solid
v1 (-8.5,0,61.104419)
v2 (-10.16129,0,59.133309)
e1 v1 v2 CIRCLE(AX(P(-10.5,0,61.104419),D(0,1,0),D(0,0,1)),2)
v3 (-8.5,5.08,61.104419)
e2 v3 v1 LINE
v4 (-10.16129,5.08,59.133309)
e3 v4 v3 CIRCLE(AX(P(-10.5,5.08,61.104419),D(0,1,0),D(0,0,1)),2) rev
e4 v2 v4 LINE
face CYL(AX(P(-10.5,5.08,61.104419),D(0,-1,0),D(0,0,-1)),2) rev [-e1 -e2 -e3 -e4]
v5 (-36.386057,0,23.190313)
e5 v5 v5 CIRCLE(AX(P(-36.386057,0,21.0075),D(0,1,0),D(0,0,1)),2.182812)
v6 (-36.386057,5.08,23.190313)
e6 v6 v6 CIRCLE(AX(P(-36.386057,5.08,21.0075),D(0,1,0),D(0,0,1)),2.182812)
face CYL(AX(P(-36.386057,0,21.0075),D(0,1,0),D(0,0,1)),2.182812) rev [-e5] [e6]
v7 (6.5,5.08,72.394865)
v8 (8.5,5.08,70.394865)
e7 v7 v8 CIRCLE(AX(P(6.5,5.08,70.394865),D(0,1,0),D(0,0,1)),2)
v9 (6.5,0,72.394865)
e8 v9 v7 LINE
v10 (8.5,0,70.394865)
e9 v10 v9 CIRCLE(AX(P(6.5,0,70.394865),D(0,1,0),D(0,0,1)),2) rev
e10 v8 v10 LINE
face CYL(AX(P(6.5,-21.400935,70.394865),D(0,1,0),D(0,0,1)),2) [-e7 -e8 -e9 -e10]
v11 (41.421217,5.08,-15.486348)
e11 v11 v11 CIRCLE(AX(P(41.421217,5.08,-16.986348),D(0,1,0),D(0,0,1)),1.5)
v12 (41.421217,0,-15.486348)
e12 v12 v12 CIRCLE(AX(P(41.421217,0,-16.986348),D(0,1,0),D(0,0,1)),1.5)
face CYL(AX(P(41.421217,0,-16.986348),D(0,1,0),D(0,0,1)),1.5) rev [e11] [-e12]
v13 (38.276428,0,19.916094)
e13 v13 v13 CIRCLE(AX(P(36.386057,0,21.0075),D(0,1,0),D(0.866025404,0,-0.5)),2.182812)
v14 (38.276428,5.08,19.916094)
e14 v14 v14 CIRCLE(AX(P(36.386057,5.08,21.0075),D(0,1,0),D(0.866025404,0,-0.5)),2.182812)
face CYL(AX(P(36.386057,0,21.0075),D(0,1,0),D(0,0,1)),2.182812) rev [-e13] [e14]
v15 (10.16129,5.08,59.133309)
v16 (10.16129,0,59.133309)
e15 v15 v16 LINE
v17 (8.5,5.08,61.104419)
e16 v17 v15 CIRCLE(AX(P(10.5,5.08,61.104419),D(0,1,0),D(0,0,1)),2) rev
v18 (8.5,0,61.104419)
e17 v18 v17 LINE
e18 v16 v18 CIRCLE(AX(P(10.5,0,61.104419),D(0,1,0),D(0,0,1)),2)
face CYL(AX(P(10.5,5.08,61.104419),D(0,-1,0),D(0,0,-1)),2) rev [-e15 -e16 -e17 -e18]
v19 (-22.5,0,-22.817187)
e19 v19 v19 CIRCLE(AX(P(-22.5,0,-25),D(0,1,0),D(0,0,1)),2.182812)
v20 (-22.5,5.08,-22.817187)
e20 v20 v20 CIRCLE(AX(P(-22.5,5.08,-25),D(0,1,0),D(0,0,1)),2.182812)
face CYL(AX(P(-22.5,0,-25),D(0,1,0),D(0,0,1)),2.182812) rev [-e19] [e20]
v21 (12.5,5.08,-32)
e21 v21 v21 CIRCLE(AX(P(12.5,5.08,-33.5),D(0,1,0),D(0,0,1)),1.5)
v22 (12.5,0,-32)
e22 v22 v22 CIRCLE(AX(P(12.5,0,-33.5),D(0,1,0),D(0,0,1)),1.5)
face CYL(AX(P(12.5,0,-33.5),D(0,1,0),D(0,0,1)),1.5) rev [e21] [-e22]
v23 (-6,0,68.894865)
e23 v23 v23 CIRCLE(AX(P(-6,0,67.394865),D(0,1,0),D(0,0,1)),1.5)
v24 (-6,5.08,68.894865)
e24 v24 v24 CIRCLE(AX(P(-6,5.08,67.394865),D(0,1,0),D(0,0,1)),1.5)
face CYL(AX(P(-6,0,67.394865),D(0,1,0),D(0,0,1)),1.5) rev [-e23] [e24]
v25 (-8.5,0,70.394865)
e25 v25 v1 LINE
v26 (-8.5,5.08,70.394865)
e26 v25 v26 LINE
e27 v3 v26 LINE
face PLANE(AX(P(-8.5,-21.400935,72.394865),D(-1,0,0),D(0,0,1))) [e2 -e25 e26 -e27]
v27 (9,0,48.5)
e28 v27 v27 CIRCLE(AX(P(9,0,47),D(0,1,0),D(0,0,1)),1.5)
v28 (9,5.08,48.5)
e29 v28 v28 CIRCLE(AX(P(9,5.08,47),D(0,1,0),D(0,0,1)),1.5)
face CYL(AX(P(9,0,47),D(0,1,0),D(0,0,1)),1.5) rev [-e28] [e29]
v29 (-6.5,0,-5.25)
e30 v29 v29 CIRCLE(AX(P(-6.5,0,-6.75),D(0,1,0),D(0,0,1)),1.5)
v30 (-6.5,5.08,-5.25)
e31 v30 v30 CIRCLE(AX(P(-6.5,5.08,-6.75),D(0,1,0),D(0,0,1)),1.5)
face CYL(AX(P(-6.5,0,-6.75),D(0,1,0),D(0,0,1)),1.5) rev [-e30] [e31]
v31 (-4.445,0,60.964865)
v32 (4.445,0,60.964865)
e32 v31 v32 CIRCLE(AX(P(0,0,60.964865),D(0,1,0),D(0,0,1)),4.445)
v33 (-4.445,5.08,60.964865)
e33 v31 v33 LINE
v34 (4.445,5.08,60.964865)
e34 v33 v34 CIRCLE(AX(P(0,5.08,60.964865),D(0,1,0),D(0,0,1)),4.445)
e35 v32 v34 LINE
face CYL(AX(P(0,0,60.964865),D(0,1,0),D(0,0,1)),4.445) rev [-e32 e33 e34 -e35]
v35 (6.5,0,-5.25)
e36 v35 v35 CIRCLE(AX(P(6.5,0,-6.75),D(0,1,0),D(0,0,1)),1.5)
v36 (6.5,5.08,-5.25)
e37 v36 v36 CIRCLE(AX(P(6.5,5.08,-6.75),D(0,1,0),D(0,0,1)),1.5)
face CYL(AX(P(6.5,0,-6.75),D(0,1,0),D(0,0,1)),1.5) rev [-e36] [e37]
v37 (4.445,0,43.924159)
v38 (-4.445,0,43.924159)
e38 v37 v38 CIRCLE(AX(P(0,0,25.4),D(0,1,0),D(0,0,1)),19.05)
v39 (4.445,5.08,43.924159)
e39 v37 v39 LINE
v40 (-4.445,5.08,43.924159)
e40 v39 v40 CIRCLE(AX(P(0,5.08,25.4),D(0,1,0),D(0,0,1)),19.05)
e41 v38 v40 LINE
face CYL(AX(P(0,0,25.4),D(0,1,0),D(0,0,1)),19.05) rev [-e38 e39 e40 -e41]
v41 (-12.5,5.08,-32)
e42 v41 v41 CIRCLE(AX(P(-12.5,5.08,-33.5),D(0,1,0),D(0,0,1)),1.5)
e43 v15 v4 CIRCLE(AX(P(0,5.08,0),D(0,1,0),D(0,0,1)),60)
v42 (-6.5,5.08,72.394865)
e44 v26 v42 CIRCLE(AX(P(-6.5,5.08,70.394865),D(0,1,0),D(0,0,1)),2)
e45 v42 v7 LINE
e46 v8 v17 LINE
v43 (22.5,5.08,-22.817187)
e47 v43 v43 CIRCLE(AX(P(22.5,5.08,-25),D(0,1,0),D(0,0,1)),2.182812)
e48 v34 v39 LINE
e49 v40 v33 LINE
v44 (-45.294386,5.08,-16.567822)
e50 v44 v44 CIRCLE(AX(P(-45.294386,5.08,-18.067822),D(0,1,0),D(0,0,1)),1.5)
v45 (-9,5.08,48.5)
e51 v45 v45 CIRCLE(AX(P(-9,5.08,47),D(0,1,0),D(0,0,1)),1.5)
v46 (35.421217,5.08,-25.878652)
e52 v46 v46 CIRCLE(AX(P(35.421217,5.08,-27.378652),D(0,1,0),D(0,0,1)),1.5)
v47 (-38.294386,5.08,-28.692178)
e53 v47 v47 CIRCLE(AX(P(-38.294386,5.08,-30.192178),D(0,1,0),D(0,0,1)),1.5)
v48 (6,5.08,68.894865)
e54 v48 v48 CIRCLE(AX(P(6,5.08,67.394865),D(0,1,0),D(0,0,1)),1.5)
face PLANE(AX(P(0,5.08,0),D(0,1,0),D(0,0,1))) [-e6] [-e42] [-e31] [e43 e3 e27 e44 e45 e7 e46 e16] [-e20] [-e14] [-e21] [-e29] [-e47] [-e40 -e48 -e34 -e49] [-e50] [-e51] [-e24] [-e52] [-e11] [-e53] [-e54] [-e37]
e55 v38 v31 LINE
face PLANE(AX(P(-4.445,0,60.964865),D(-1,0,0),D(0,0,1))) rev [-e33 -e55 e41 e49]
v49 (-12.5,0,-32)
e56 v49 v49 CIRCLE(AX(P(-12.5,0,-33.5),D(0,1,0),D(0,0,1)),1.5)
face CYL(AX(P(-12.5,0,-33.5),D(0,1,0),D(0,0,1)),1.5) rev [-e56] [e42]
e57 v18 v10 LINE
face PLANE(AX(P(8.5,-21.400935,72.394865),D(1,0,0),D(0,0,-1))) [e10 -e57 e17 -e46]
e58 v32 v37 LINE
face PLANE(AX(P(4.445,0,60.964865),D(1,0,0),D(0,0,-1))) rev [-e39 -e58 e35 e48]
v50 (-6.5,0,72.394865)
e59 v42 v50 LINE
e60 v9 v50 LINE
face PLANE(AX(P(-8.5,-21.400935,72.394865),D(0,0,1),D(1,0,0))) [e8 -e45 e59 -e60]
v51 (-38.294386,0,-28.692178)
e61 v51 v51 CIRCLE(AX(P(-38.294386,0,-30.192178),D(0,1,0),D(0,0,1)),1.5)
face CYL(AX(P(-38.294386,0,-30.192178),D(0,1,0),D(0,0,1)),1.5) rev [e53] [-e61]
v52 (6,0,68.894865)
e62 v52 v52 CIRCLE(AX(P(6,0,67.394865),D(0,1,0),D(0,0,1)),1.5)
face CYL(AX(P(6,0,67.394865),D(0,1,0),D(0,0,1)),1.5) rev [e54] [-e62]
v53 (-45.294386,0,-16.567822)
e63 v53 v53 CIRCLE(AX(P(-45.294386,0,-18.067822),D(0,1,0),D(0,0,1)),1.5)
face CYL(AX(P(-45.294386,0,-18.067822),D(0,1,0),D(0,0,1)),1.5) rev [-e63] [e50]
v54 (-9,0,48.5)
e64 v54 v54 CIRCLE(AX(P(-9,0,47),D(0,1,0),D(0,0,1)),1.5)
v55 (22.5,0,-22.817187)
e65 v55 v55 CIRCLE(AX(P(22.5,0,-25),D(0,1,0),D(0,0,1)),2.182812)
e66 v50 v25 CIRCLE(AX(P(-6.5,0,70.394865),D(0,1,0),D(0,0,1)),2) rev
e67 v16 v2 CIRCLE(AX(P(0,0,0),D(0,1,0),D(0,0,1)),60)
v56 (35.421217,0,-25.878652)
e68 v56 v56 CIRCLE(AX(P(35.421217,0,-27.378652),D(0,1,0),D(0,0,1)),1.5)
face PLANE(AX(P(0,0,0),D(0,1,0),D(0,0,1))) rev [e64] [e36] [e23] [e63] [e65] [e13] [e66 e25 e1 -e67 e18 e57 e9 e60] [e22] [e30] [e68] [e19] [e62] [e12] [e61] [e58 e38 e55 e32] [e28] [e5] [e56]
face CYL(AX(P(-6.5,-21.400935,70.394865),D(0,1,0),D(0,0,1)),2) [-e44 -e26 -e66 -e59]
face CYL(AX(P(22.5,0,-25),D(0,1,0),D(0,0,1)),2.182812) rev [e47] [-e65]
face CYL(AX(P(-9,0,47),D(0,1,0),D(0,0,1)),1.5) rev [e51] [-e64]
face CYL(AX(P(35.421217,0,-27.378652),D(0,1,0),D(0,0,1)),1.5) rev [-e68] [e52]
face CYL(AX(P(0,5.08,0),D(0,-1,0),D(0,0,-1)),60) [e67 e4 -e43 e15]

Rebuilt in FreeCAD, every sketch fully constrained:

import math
import FreeCAD as App
import Part
import Sketcher
Q = App.Units.Quantity


def edges_at(feature, points):
    """Names of the edges that pass closest to the given points."""
    edges = feature.Shape.Edges
    near = lambda p: min(range(len(edges)), key=lambda i: edges[i].distToShape(Part.Vertex(*p))[0])
    return sorted({f"Edge{near(p) + 1}" for p in points})


def add_polygon(sketch, points):
    """Adds a closed chain of lines whose ends are joined by coincident constraints."""
    first, n = sketch.GeometryCount, len(points)
    for a, b in zip(points, points[1:] + points[:1]):
        sketch.addGeometry(Part.LineSegment(App.Vector(*a, 0), App.Vector(*b, 0)), False)
    for i in range(n):
        sketch.addConstraint(Sketcher.Constraint("Coincident", first + i, 2, first + (i + 1) % n, 1))

doc = App.newDocument("Part")
body = doc.addObject("PartDesign::Body", "Body")

sketch1 = doc.addObject("Sketcher::SketchObject", "Sketch")
body.addObject(sketch1)
sketch1.AttachmentSupport = (doc.XZ_Plane, [""])
sketch1.MapMode = "FlatFace"
sketch1.addGeometry(Part.Circle(App.Vector(0, 0, 0), App.Vector(0, 0, 1), 60), False)
sketch1.addConstraint([
    Sketcher.Constraint("Coincident", 0, 3, -1, 1),
    Sketcher.Constraint("Diameter", 0, Q("120 mm")),
])
pad1 = doc.addObject("PartDesign::Pad", "Pad")
body.addObject(pad1)
pad1.Profile = sketch1
pad1.Length = 5.08
pad1.Reversed = True

sketch2 = doc.addObject("Sketcher::SketchObject", "Sketch001")
body.addObject(sketch2)
sketch2.AttachmentSupport = (doc.XZ_Plane, [""])
sketch2.MapMode = "FlatFace"
sketch2.AttachmentOffset = App.Placement(App.Vector(0, 0, -5.08), App.Rotation())
sketch2.addGeometry(Part.Circle(App.Vector(-36.386057, 21.0075, 0), App.Vector(0, 0, 1), 2.182812), False)
sketch2.addConstraint([
    Sketcher.Constraint("Diameter", 0, Q("4.365625 mm")),
    Sketcher.Constraint("DistanceY", -1, 1, 0, 3, Q("21.0075 mm")),
    Sketcher.Constraint("DistanceX", 0, 3, -1, 1, Q("36.386057 mm")),
])
pocket1 = doc.addObject("PartDesign::Pocket", "Pocket")
body.addObject(pocket1)
pocket1.Profile = sketch2
pocket1.Type = "ThroughAll"
pocket1.Reversed = True
doc.recompute()

polarpattern = doc.addObject("PartDesign::PolarPattern", "PolarPattern")
body.addObject(polarpattern)
polarpattern.Originals = [pocket1]
polarpattern.Axis = (doc.Y_Axis, [""])
polarpattern.Angle = 120
polarpattern.Occurrences = 2
body.Tip = polarpattern

sketch3 = doc.addObject("Sketcher::SketchObject", "Sketch002")
body.addObject(sketch3)
sketch3.AttachmentSupport = (doc.XZ_Plane, [""])
sketch3.MapMode = "FlatFace"
sketch3.AttachmentOffset = App.Placement(App.Vector(0, 0, -5.08), App.Rotation())
sketch3.addGeometry([
    Part.Circle(App.Vector(-6.5, -6.75, 0), App.Vector(0, 0, 1), 1.5),
    Part.Circle(App.Vector(6.5, -6.75, 0), App.Vector(0, 0, 1), 1.5),
    Part.Circle(App.Vector(-12.5, -33.5, 0), App.Vector(0, 0, 1), 1.5),
    Part.Circle(App.Vector(12.5, -33.5, 0), App.Vector(0, 0, 1), 1.5),
    Part.Circle(App.Vector(35.421217, -27.378652, 0), App.Vector(0, 0, 1), 1.5),
    Part.Circle(App.Vector(41.421217, -16.986348, 0), App.Vector(0, 0, 1), 1.5),
    Part.Circle(App.Vector(-45.294386, -18.067822, 0), App.Vector(0, 0, 1), 1.5),
    Part.Circle(App.Vector(-38.294386, -30.192178, 0), App.Vector(0, 0, 1), 1.5),
], False)
sketch3.addConstraint([
    Sketcher.Constraint("Equal", 0, 1),
    Sketcher.Constraint("Equal", 1, 2),
    Sketcher.Constraint("Equal", 2, 3),
    Sketcher.Constraint("Equal", 3, 4),
    Sketcher.Constraint("Equal", 4, 5),
    Sketcher.Constraint("Equal", 5, 6),
    Sketcher.Constraint("Equal", 6, 7),
    Sketcher.Constraint("Symmetric", 0, 3, 1, 3, -2),
    Sketcher.Constraint("Symmetric", 2, 3, 3, 3, -2),
    Sketcher.Constraint("Diameter", 0, Q("3 mm")),
    Sketcher.Constraint("DistanceX", 0, 3, 1, 3, Q("13 mm")),
    Sketcher.Constraint("DistanceX", 2, 3, 0, 3, Q("6 mm")),
    Sketcher.Constraint("DistanceX", 4, 3, 5, 3, Q("6 mm")),
    Sketcher.Constraint("DistanceX", 6, 3, 7, 3, Q("7 mm")),
    Sketcher.Constraint("DistanceY", 2, 3, -1, 1, Q("33.5 mm")),
    Sketcher.Constraint("DistanceY", 0, 3, -1, 1, Q("6.75 mm")),
    Sketcher.Constraint("DistanceY", 4, 3, 6, 3, Q("9.31083 mm")),
    Sketcher.Constraint("DistanceX", -1, 1, 4, 3, Q("35.421217 mm")),
    Sketcher.Constraint("DistanceY", 4, 3, -1, 1, Q("27.378652 mm")),
    Sketcher.Constraint("DistanceY", 5, 3, -1, 1, Q("16.986348 mm")),
    Sketcher.Constraint("DistanceX", 6, 3, -1, 1, Q("45.294386 mm")),
    Sketcher.Constraint("DistanceY", 7, 3, -1, 1, Q("30.192178 mm")),
])
pocket2 = doc.addObject("PartDesign::Pocket", "Pocket001")
body.addObject(pocket2)
pocket2.Profile = sketch3
pocket2.Type = "ThroughAll"
pocket2.Reversed = True

sketch4 = doc.addObject("Sketcher::SketchObject", "Sketch003")
body.addObject(sketch4)
sketch4.AttachmentSupport = (doc.XZ_Plane, [""])
sketch4.MapMode = "FlatFace"
sketch4.AttachmentOffset = App.Placement(App.Vector(0, 0, -5.08), App.Rotation())
sketch4.addGeometry([
    Part.Circle(App.Vector(-22.5, -25, 0), App.Vector(0, 0, 1), 2.182812),
    Part.Circle(App.Vector(22.5, -25, 0), App.Vector(0, 0, 1), 2.182812),
], False)
sketch4.addConstraint([
    Sketcher.Constraint("Equal", 0, 1),
    Sketcher.Constraint("Symmetric", 0, 3, 1, 3, -2),
    Sketcher.Constraint("DistanceY", 0, 3, -1, 1, Q("25 mm")),
    Sketcher.Constraint("DistanceX", 0, 3, 1, 3, Q("45 mm")),
    Sketcher.Constraint("Diameter", 0, Q("4.365625 mm")),
])
pocket3 = doc.addObject("PartDesign::Pocket", "Pocket002")
body.addObject(pocket3)
pocket3.Profile = sketch4
pocket3.Type = "ThroughAll"
pocket3.Reversed = True

sketch5 = doc.addObject("Sketcher::SketchObject", "Sketch004")
body.addObject(sketch5)
sketch5.AttachmentSupport = (doc.XZ_Plane, [""])
sketch5.MapMode = "FlatFace"
sketch5.AttachmentOffset = App.Placement(App.Vector(0, 0, -5.08), App.Rotation())
sketch5.addGeometry(Part.Circle(App.Vector(0, 25.4, 0), App.Vector(0, 0, 1), 19.05), False)
sketch5.addConstraint([
    Sketcher.Constraint("PointOnObject", 0, 3, -2),
    Sketcher.Constraint("Diameter", 0, Q("38.1 mm")),
    Sketcher.Constraint("DistanceY", -1, 1, 0, 3, Q("25.4 mm")),
])
pocket4 = doc.addObject("PartDesign::Pocket", "Pocket003")
body.addObject(pocket4)
pocket4.Profile = sketch5
pocket4.Type = "ThroughAll"
pocket4.Reversed = True

sketch6 = doc.addObject("Sketcher::SketchObject", "Sketch005")
body.addObject(sketch6)
sketch6.AttachmentSupport = (doc.XZ_Plane, [""])
sketch6.MapMode = "FlatFace"
sketch6.AttachmentOffset = App.Placement(App.Vector(0, 0, -5.08), App.Rotation())
add_polygon(sketch6, [(-8.5, 59.394865), (-8.5, 72.394865), (8.5, 72.394865), (8.5, 59.394865)])
sketch6.addConstraint([
    Sketcher.Constraint("Vertical", 0),
    Sketcher.Constraint("Horizontal", 1),
    Sketcher.Constraint("Vertical", 2),
    Sketcher.Constraint("Horizontal", 3),
    Sketcher.Constraint("DistanceX", 1, 1, 1, 2, Q("17 mm")),
    Sketcher.Constraint("DistanceY", 0, 1, 0, 2, Q("13 mm")),
    Sketcher.Constraint("DistanceX", 0, 2, -1, 1, Q("8.5 mm")),
    Sketcher.Constraint("DistanceY", -1, 1, 0, 2, Q("72.394865 mm")),
])
pad2 = doc.addObject("PartDesign::Pad", "Pad001")
body.addObject(pad2)
pad2.Profile = sketch6
pad2.Length = 5.08

sketch7 = doc.addObject("Sketcher::SketchObject", "Sketch006")
body.addObject(sketch7)
sketch7.AttachmentSupport = (doc.XZ_Plane, [""])
sketch7.MapMode = "FlatFace"
sketch7.AttachmentOffset = App.Placement(App.Vector(0, 0, -5.08), App.Rotation())
sketch7.addGeometry([
    Part.Circle(App.Vector(-9, 47, 0), App.Vector(0, 0, 1), 1.5),
    Part.Circle(App.Vector(-6, 67.394865, 0), App.Vector(0, 0, 1), 1.5),
    Part.Circle(App.Vector(6, 67.394865, 0), App.Vector(0, 0, 1), 1.5),
    Part.Circle(App.Vector(9, 47, 0), App.Vector(0, 0, 1), 1.5),
    Part.LineSegment(App.Vector(-4.445, 43.924159, 0), App.Vector(-4.445, 60.964865, 0)),
    Part.ArcOfCircle(Part.Circle(App.Vector(0, 60.964865, 0), App.Vector(0, 0, 1), 4.445), math.radians(0), math.radians(180)),
    Part.LineSegment(App.Vector(4.445, 60.964865, 0), App.Vector(4.445, 43.924159, 0)),
    Part.LineSegment(App.Vector(4.445, 43.924159, 0), App.Vector(-4.445, 43.924159, 0)),
], False)
sketch7.addConstraint([
    Sketcher.Constraint("Tangent", 4, 2, 5, 2),
    Sketcher.Constraint("Tangent", 5, 1, 6, 1),
    Sketcher.Constraint("Coincident", 6, 2, 7, 1),
    Sketcher.Constraint("Coincident", 7, 2, 4, 1),
    Sketcher.Constraint("Vertical", 4),
    Sketcher.Constraint("Vertical", 6),
    Sketcher.Constraint("Horizontal", 7),
    Sketcher.Constraint("Equal", 0, 1),
    Sketcher.Constraint("Equal", 1, 2),
    Sketcher.Constraint("Equal", 2, 3),
    Sketcher.Constraint("Symmetric", 1, 3, 2, 3, -2),
    Sketcher.Constraint("Symmetric", 0, 3, 3, 3, -2),
    Sketcher.Constraint("PointOnObject", 5, 3, -2),
    Sketcher.Constraint("Diameter", 0, Q("3 mm")),
    Sketcher.Constraint("DistanceX", 0, 3, -1, 1, Q("9 mm")),
    Sketcher.Constraint("DistanceY", -1, 1, 0, 3, Q("47 mm")),
    Sketcher.Constraint("DistanceX", 1, 3, -1, 1, Q("6 mm")),
    Sketcher.Constraint("Radius", 5, Q("4.445 mm")),
    Sketcher.Constraint("DistanceY", 5, 3, 1, 3, Q("6.43 mm")),
    Sketcher.Constraint("DistanceY", 4, 1, 4, 2, Q("17.040706 mm")),
    Sketcher.Constraint("DistanceY", -1, 1, 6, 2, Q("43.924159 mm")),
])
pocket5 = doc.addObject("PartDesign::Pocket", "Pocket004")
body.addObject(pocket5)
pocket5.Profile = sketch7
pocket5.Type = "ThroughAll"
pocket5.Reversed = True
doc.recompute()

fillet = doc.addObject("PartDesign::Fillet", "Fillet")
body.addObject(fillet)
fillet.Base = (pocket5, edges_at(pocket5, [(8.5, 2.54, 72.395), (-8.5, 2.54, 72.395)]))
fillet.Radius = 2
doc.recompute()

fillet2 = doc.addObject("PartDesign::Fillet", "Fillet001")
body.addObject(fillet2)
fillet2.Base = (fillet, edges_at(fillet, [(8.5, 2.54, 59.395), (-8.5, 2.54, 59.395)]))
fillet2.Radius = 2

doc.recompute()
